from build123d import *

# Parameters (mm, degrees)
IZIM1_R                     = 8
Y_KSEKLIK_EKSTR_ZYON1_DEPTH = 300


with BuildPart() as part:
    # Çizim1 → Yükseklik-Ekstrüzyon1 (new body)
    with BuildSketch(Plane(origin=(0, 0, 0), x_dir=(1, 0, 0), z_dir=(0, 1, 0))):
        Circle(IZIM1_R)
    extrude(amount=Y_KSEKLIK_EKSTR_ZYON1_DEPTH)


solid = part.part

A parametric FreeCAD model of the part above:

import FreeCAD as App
import Part
import Sketcher

V = App.Vector

doc = App.newDocument("Part")
body = doc.addObject("PartDesign::Body", "Body")

# Sketch on XZ plane
sketch1 = doc.addObject("Sketcher::SketchObject", "Sketch")
body.addObject(sketch1)
sketch1.AttachmentSupport = (doc.XZ_Plane, [""])
sketch1.MapMode = "FlatFace"
sketch1.addGeometry(Part.Circle(V(0, 0, 0), V(0, 0, 1), 8), False)
sketch1.addConstraint(Sketcher.Constraint("Coincident", 0, 3, -1, 1))
sketch1.addConstraint(Sketcher.Constraint("Diameter", 0, 16.0))
pad1 = doc.addObject("PartDesign::Pad", "Pad")
body.addObject(pad1)
pad1.Profile = sketch1
pad1.Length = 300
pad1.Reversed = True

doc.recompute()
